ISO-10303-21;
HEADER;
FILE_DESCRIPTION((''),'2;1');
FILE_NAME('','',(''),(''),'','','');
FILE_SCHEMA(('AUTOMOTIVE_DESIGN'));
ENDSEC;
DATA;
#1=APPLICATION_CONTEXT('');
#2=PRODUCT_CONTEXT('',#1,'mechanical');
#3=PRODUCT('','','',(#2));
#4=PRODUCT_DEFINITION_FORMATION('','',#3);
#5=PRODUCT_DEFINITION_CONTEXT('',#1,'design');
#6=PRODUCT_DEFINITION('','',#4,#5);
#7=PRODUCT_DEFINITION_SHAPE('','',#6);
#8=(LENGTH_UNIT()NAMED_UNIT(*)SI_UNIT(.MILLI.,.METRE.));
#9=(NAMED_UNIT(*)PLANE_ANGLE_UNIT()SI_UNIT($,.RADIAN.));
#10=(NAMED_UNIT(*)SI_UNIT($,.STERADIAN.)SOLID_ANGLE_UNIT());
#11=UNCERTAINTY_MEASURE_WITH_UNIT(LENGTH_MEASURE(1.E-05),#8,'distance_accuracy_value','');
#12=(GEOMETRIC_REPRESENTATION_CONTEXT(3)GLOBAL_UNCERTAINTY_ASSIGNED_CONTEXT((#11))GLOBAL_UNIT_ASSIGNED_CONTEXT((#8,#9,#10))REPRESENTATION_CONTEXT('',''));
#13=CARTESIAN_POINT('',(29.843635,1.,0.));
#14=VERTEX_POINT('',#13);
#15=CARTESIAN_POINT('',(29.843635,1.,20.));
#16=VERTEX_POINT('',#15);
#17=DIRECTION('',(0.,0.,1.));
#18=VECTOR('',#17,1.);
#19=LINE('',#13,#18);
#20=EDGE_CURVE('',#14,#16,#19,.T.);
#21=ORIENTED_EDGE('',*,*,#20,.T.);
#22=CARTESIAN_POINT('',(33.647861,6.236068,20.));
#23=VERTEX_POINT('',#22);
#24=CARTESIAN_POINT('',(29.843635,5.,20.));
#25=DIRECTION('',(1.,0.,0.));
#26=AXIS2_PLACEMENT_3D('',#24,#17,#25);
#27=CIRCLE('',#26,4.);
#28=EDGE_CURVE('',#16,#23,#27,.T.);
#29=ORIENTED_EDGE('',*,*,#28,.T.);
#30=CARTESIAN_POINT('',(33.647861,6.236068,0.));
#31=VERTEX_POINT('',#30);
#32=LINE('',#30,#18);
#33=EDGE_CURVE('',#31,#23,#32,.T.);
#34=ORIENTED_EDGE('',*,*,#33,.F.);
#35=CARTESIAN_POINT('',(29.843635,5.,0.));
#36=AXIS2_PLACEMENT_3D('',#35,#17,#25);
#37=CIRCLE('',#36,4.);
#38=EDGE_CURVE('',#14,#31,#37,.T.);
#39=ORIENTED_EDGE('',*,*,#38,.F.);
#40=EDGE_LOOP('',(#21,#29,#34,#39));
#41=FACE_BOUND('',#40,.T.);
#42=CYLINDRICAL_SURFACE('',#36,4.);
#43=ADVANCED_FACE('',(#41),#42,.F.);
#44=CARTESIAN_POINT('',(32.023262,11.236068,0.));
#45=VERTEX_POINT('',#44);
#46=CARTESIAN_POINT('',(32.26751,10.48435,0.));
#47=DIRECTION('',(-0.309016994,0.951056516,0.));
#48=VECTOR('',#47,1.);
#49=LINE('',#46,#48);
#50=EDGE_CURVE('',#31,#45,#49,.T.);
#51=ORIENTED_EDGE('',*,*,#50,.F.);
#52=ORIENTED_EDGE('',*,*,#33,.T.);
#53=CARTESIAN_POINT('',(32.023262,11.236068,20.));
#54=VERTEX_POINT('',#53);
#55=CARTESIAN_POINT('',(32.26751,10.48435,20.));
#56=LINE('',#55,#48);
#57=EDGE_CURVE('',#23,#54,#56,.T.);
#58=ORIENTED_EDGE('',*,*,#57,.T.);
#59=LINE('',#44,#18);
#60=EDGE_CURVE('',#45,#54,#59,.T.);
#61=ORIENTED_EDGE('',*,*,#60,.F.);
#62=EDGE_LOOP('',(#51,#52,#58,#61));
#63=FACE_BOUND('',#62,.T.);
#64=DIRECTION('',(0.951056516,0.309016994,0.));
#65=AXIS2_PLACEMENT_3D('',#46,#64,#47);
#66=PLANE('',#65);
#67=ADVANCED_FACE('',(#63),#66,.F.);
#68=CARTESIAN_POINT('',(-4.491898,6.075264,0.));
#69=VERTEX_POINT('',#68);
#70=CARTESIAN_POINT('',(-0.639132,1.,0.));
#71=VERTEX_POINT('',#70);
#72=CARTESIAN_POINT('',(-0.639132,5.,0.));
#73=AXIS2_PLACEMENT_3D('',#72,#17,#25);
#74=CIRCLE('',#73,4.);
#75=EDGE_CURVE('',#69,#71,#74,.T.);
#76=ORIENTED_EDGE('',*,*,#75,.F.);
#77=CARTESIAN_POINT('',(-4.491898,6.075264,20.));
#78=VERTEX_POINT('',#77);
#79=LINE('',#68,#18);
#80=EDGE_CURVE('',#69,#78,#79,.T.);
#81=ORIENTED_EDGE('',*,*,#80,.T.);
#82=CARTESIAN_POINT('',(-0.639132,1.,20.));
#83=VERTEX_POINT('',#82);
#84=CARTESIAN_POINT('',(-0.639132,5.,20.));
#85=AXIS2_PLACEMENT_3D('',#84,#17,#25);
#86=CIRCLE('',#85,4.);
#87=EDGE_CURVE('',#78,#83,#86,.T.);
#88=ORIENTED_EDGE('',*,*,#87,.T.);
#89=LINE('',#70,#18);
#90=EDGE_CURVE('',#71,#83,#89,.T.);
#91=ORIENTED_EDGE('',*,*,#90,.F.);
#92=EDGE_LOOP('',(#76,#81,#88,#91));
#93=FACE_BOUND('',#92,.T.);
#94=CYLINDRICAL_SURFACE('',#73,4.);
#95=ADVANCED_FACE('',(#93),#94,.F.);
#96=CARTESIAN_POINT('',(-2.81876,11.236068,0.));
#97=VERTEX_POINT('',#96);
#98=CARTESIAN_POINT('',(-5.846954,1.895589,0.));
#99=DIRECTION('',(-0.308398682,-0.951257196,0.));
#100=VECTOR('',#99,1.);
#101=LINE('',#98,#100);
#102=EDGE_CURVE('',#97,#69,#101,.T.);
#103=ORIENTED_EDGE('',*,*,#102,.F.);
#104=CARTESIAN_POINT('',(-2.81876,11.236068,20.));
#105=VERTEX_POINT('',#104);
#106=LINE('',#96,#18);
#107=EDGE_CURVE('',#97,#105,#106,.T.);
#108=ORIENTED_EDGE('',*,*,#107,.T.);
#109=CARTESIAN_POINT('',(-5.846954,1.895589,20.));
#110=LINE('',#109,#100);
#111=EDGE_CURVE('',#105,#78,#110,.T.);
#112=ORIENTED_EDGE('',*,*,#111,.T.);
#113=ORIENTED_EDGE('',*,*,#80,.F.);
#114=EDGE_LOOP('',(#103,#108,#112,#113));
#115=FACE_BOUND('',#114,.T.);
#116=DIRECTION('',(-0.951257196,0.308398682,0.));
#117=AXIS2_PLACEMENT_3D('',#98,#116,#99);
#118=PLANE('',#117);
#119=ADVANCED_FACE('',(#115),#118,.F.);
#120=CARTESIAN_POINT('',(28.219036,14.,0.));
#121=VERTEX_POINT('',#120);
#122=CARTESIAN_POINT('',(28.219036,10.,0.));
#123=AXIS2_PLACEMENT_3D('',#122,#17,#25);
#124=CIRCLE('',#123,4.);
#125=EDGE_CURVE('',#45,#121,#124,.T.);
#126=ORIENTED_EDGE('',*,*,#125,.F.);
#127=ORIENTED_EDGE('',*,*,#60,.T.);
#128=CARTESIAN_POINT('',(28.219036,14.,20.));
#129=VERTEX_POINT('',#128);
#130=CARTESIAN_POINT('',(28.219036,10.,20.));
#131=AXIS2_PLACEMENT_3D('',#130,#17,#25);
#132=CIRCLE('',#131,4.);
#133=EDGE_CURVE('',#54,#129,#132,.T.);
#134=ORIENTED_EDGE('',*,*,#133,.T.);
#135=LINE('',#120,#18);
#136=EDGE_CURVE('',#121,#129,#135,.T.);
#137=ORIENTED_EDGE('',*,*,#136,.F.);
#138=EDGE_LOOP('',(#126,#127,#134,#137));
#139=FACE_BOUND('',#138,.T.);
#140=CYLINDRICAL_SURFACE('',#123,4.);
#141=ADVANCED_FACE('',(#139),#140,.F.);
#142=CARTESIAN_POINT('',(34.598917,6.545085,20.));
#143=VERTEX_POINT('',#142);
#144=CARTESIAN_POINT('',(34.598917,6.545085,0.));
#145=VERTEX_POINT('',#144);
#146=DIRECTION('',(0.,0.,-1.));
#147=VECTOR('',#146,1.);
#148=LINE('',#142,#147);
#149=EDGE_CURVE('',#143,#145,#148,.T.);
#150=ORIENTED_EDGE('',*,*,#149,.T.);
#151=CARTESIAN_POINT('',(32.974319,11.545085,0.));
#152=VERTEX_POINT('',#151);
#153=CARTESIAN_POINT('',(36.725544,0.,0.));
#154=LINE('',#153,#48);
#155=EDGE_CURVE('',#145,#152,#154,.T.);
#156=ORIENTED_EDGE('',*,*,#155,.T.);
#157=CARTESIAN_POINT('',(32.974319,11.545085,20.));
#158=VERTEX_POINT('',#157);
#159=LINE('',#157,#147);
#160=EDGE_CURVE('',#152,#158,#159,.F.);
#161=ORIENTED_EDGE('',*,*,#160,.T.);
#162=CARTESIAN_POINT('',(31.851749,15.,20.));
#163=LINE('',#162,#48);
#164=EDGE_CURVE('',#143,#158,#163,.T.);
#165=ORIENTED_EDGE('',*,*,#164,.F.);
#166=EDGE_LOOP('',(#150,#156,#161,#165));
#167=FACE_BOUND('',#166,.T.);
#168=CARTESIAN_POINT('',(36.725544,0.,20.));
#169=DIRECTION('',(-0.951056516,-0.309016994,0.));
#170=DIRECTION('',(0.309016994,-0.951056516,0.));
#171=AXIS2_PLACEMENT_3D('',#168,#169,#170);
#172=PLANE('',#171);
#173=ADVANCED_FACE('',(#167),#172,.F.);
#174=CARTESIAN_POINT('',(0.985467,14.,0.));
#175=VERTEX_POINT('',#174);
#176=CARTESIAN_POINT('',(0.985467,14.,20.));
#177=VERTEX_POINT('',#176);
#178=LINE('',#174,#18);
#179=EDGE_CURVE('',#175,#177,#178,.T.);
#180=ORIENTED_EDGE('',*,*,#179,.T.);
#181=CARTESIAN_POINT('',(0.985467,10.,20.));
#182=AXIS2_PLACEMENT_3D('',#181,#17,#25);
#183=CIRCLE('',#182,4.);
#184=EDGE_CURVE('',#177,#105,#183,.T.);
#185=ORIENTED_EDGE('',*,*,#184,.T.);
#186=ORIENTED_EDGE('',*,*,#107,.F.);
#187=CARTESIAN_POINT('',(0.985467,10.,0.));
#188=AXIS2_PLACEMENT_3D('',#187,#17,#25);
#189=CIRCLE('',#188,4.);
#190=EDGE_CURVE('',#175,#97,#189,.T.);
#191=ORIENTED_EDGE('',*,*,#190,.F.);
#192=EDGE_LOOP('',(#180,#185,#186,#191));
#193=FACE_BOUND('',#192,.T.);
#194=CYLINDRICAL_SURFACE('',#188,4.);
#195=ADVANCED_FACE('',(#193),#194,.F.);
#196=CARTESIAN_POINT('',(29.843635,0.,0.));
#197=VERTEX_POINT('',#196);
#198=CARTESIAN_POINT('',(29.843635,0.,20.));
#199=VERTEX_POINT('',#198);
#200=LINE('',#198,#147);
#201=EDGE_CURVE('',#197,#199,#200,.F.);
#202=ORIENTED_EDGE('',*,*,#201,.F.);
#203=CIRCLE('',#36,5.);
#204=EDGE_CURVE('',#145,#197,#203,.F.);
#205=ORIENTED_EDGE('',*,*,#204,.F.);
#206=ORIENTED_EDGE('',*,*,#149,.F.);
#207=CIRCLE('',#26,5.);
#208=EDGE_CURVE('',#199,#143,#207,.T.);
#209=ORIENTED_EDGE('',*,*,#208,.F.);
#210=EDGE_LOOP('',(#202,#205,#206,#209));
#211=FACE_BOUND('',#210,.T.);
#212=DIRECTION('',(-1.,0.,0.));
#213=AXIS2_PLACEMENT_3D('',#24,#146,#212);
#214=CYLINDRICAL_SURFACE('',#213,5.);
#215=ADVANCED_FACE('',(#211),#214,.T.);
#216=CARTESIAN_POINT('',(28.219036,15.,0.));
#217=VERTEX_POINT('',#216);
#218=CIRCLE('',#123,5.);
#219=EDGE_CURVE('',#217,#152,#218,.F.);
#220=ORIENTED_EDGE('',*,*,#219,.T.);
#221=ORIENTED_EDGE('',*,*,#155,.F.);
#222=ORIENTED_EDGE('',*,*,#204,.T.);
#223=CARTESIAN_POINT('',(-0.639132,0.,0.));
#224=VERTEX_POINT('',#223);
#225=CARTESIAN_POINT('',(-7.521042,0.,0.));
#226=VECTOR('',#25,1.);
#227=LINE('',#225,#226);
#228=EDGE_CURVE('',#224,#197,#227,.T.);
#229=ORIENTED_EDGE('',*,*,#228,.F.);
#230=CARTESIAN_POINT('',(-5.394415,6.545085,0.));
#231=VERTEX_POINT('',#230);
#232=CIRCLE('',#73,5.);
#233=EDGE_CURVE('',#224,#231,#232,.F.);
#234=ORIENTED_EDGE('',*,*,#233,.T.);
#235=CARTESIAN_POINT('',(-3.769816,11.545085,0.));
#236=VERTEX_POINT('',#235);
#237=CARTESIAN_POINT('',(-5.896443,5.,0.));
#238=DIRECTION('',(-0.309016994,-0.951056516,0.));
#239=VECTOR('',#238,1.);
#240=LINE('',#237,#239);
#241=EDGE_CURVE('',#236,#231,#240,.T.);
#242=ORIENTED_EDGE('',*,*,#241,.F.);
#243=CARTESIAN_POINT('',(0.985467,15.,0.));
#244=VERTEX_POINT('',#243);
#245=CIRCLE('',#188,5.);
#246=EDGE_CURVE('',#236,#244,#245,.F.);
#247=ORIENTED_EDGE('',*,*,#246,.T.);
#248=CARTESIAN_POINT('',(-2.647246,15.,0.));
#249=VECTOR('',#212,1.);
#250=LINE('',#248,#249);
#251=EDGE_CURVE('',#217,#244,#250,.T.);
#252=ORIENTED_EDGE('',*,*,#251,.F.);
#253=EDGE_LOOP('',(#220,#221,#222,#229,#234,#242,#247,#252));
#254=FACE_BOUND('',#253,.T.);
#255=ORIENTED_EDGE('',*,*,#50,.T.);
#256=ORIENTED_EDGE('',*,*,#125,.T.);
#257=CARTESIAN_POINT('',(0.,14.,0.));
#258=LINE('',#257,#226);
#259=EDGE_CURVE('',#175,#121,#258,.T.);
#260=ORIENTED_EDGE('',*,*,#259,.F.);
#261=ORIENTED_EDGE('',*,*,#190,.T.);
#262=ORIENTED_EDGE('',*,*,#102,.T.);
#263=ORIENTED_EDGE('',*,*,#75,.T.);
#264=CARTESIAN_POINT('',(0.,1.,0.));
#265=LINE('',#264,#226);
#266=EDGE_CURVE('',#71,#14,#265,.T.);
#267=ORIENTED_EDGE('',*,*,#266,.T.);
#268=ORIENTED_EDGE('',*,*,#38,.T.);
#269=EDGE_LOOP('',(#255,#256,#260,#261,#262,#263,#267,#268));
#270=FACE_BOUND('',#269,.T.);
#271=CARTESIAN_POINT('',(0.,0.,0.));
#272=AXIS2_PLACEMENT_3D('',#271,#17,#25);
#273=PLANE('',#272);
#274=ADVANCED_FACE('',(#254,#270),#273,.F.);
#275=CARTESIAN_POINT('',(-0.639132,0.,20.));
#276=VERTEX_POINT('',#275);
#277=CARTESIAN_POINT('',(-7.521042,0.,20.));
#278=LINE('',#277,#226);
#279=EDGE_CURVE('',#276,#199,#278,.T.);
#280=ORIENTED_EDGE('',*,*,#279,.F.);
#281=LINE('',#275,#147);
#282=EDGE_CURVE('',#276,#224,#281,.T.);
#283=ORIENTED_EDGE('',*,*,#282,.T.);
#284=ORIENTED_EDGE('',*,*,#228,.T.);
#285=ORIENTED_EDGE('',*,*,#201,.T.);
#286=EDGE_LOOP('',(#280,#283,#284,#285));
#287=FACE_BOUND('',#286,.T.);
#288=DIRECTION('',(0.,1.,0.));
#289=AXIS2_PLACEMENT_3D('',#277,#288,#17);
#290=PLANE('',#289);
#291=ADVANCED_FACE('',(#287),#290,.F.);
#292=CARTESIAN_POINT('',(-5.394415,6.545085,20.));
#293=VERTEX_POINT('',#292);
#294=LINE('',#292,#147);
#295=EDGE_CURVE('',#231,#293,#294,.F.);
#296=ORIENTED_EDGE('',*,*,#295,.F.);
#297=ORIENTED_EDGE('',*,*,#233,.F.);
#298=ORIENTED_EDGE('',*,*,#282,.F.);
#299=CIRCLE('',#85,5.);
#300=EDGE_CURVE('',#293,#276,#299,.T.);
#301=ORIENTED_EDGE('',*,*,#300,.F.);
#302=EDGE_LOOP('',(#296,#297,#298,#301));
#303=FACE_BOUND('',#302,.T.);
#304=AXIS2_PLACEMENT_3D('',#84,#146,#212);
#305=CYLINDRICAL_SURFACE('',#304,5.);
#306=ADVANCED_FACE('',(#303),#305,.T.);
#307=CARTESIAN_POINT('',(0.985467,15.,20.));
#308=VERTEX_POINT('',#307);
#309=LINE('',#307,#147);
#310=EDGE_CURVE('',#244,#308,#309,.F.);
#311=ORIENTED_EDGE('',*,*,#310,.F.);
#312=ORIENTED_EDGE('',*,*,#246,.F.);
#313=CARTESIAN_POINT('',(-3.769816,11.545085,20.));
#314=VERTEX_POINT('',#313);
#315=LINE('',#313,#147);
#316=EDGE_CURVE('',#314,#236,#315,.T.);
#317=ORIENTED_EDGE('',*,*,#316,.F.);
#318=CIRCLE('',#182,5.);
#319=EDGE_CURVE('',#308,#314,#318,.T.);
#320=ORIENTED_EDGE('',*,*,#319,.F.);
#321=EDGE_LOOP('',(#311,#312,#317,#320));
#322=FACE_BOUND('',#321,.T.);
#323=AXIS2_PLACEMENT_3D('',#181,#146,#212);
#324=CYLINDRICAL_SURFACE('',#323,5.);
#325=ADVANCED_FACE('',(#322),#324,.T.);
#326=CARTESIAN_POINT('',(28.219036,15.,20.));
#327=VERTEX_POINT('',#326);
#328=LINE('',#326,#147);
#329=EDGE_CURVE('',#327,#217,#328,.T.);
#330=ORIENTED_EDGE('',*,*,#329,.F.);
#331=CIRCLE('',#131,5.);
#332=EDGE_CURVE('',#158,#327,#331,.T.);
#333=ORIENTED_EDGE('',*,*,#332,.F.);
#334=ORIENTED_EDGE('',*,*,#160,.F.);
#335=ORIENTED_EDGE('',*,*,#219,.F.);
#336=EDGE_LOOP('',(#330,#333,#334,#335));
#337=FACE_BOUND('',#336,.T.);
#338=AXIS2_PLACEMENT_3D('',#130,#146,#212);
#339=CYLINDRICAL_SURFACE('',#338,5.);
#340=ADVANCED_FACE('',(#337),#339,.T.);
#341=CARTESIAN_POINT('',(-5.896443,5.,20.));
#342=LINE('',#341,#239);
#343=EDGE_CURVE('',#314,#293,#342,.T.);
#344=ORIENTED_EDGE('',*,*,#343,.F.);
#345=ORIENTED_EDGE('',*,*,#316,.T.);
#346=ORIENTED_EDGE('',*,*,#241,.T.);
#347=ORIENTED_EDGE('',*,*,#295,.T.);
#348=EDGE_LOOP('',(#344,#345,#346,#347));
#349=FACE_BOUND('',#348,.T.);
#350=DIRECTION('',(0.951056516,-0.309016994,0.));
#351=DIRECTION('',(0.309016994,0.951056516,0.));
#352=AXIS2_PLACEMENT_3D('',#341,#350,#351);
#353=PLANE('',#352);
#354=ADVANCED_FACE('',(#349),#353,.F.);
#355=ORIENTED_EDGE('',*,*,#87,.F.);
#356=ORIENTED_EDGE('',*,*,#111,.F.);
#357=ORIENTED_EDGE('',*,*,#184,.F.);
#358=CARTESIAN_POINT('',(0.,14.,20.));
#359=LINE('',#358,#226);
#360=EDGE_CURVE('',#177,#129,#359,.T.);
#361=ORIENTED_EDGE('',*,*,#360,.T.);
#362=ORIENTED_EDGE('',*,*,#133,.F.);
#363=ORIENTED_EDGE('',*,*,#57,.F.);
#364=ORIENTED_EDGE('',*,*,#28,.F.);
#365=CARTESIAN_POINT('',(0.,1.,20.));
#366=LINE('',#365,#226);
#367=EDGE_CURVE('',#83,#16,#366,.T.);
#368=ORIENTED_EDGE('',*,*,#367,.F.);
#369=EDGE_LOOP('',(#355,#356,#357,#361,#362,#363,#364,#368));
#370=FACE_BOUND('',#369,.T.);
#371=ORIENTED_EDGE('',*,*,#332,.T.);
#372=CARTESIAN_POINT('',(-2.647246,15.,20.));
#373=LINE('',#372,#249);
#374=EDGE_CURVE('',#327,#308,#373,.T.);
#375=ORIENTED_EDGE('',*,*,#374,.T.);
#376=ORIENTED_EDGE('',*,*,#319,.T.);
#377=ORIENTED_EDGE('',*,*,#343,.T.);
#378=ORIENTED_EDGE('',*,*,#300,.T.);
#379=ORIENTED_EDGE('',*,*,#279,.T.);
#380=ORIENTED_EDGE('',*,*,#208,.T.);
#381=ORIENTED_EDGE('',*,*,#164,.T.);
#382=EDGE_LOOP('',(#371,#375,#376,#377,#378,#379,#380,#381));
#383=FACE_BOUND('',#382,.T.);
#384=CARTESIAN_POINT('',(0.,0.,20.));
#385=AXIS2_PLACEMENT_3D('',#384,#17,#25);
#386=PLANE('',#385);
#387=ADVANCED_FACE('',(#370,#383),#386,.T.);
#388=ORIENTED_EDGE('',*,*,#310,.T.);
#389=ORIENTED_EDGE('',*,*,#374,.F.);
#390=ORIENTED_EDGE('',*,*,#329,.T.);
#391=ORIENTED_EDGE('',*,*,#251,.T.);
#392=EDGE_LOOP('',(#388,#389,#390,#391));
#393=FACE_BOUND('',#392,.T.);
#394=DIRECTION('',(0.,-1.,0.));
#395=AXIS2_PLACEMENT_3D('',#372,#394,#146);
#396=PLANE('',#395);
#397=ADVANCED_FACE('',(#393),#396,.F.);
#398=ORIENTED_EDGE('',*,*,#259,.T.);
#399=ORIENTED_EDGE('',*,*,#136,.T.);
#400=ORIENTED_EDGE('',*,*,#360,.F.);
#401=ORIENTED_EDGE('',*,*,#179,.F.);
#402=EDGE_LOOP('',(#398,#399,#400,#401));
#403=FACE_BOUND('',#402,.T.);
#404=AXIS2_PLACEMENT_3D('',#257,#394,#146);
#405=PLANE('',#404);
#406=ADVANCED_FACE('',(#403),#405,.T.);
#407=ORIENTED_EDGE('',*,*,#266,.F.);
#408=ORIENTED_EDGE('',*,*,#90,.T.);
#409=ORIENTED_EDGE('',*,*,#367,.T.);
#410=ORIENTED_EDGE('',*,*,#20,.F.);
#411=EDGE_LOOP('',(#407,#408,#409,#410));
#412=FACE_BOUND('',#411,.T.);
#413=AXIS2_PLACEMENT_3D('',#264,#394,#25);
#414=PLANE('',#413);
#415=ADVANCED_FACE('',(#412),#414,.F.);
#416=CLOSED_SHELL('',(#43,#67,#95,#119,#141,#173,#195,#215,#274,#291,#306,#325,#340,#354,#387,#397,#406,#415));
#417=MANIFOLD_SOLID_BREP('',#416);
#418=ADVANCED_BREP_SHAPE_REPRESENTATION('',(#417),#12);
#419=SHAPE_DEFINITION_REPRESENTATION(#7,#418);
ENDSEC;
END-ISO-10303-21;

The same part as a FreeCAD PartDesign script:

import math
import FreeCAD as App
import Part
import Sketcher
from FreeCAD import Vector
Q = App.Units.Quantity


def edges_at(feature, points):
    """Names of the edges that pass closest to the given points."""
    edges = feature.Shape.Edges
    near = lambda p: min(range(len(edges)), key=lambda i: edges[i].distToShape(Part.Vertex(*p))[0])
    return sorted({f"Edge{near(p) + 1}" for p in points})

doc = App.newDocument("Part")
body = doc.addObject("PartDesign::Body", "Body")

# Sketch on XY plane
sketch1 = body.newObject("Sketcher::SketchObject", "Sketch")
sketch1.AttachmentSupport = (doc.getObject("XY_Plane"), [""])
sketch1.MapMode = "FlatFace"
sketch1.addGeometry([
    Part.LineSegment(Vector(-8, 0, 0), Vector(37, 0, 0)),  # 0
    Part.LineSegment(Vector(37, 0, 0), Vector(35, 5, 0)),  # 1
    Part.LineSegment(Vector(35, 5, 0), Vector(32, 15, 0)),  # 2
    Part.LineSegment(Vector(32, 15, 0), Vector(-3, 15, 0)),  # 3
    Part.LineSegment(Vector(-3, 15, 0), Vector(-8, 0, 0)),  # 4
], False)
sketch1.addConstraint([
    Sketcher.Constraint("Coincident", 0, 2, 1, 1),
    Sketcher.Constraint("Coincident", 1, 2, 2, 1),
    Sketcher.Constraint("Coincident", 2, 2, 3, 1),
    Sketcher.Constraint("Coincident", 3, 2, 4, 1),
    Sketcher.Constraint("Coincident", 4, 2, 0, 1),
    Sketcher.Constraint("Horizontal", 0),
    Sketcher.Constraint("Horizontal", 3),
    Sketcher.Constraint("PointOnObject", 0, 2, -1),
    Sketcher.Constraint("Parallel", 1, 2),
    Sketcher.Constraint("Angle", 1, Q("108 deg")),
    Sketcher.Constraint("Angle", 4, Q("-108 deg")),
    Sketcher.Constraint("DistanceY", -1, 1, 1, 2, Q("5 mm")),
    Sketcher.Constraint("DistanceY", -1, 1, 2, 2, Q("15 mm")),
    Sketcher.Constraint("DistanceX", 0, 1, 0, 2, Q("44.246586 mm")),
    Sketcher.Constraint("DistanceX", -1, 1, 2, 2, Q("31.851749 mm")),
])
pad1 = body.newObject("PartDesign::Pad", "Pad")
pad1.Profile = sketch1
pad1.Length = 20
doc.recompute()

fillet = body.newObject("PartDesign::Fillet", "Fillet")
fillet.Base = (pad1, edges_at(pad1, [
    (36.726, 0, 10),
    (-7.521, 0, 10),
    (-2.647, 15, 10),
    (31.852, 15, 10),
]))
fillet.Radius = 5

# Sketch on XY plane
sketch2 = body.newObject("Sketcher::SketchObject", "Sketch001")
sketch2.AttachmentSupport = (doc.getObject("XY_Plane"), [""])
sketch2.MapMode = "FlatFace"
sketch2.AttachmentOffset = App.Placement(Vector(0, 0, 20), App.Rotation())
sketch2.addGeometry([
    Part.LineSegment(Vector(28.219, 14, 0), Vector(0.985, 14, 0)),  # 0
    Part.ArcOfCircle(Part.Circle(Vector(0.985, 10, 0), Vector(0, 0, 1), 4), math.radians(90), math.radians(162)),  # 1
    Part.LineSegment(Vector(-2.819, 11.236, 0), Vector(-2.82, 11.231, 0)),  # 2
    Part.LineSegment(Vector(-2.82, 11.231, 0), Vector(-4.492, 6.075, 0)),  # 3
    Part.ArcOfCircle(Part.Circle(Vector(-0.639, 5, 0), Vector(0, 0, 1), 4), math.radians(164), math.radians(270)),  # 4
    Part.LineSegment(Vector(-0.639, 1, 0), Vector(29.844, 1, 0)),  # 5
    Part.ArcOfCircle(Part.Circle(Vector(29.844, 5, 0), Vector(0, 0, 1), 4), math.radians(-90), math.radians(18)),  # 6
    Part.LineSegment(Vector(33.648, 6.236, 0), Vector(32.023, 11.236, 0)),  # 7
    Part.ArcOfCircle(Part.Circle(Vector(28.219, 10, 0), Vector(0, 0, 1), 4), math.radians(18), math.radians(90)),  # 8
], False)
sketch2.addConstraint([
    Sketcher.Constraint("Tangent", 0, 2, 1, 1),
    Sketcher.Constraint("Coincident", 1, 2, 2, 1),
    Sketcher.Constraint("Coincident", 2, 2, 3, 1),
    Sketcher.Constraint("Coincident", 3, 2, 4, 1),
    Sketcher.Constraint("Tangent", 4, 2, 5, 1),
    Sketcher.Constraint("Tangent", 5, 2, 6, 1),
    Sketcher.Constraint("Tangent", 6, 2, 7, 1),
    Sketcher.Constraint("Tangent", 7, 2, 8, 1),
    Sketcher.Constraint("Tangent", 8, 2, 0, 1),
    Sketcher.Constraint("Horizontal", 0),
    Sketcher.Constraint("Horizontal", 5),
    Sketcher.Constraint("Equal", 1, 4),
    Sketcher.Constraint("Equal", 4, 6),
    Sketcher.Constraint("Equal", 6, 8),
    Sketcher.Constraint("Parallel", 2, 3),
    Sketcher.Constraint("Horizontal", 1, 2, 7, 2),
    Sketcher.Constraint("Radius", 1, Q("4 mm")),
    Sketcher.Constraint("Angle", 7, Q("108 deg")),
    Sketcher.Constraint("DistanceY", -1, 1, 1, 3, Q("10 mm")),
    Sketcher.Constraint("DistanceY", -1, 1, 4, 3, Q("5 mm")),
    Sketcher.Constraint("Distance", 2, Q("0.005201 mm")),
    Sketcher.Constraint("DistanceX", 0, 2, 0, 1, Q("27.23357 mm")),
    Sketcher.Constraint("DistanceX", 3, 2, -1, 1, Q("4.491898 mm")),
    Sketcher.Constraint("DistanceX", 4, 3, 1, 3, Q("1.624598 mm")),
    Sketcher.Constraint("DistanceX", 4, 3, -1, 1, Q("0.639132 mm")),
])
pocket1 = body.newObject("PartDesign::Pocket", "Pocket")
pocket1.Profile = sketch2
pocket1.Type = "ThroughAll"

doc.recompute()
